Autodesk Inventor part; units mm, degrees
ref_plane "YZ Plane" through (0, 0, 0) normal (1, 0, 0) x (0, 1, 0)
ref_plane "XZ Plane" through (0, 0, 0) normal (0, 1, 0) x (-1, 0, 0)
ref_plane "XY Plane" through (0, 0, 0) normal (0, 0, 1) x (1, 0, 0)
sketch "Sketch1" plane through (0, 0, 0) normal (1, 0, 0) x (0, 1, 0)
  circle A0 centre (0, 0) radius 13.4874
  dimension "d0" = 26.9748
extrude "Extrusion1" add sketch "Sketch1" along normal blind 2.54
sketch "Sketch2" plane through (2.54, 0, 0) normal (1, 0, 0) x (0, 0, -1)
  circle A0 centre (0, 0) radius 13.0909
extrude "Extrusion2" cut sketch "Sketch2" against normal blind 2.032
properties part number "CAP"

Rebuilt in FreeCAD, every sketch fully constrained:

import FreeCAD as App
import Part
import Sketcher

V = App.Vector
Q = App.Units.Quantity

doc = App.newDocument("Part")
params = doc.addObject("Spreadsheet::Sheet", "Params")
for row, (alias, value) in enumerate([
    ("sketch1_diameter", "1.062 in"),
    ("pad1_length", "0.1 in"),
    ("pocket1_length", "0.08 in"),
], start=1):
    params.set(f"A{row}", alias)
    params.set(f"B{row}", "=" + value)
    params.setAlias(f"B{row}", alias)

body = doc.addObject("PartDesign::Body", "Body")

sketch1 = doc.addObject("Sketcher::SketchObject", "Sketch")
body.addObject(sketch1)
sketch1.AttachmentSupport = (doc.YZ_Plane, [""])
sketch1.MapMode = "FlatFace"
sketch1.addGeometry(Part.Circle(V(0, 0, 0), V(0, 0, 1), 13), False)
sketch1.addConstraint(Sketcher.Constraint("Coincident", 0, 3, -1, 1))
sketch1.addConstraint(Sketcher.Constraint("Diameter", 0, Q("1.062 in")))
sketch1.setExpression("Constraints[1]", "Params.sketch1_diameter")
pad1 = doc.addObject("PartDesign::Pad", "Pad")
body.addObject(pad1)
pad1.Profile = sketch1
pad1.setExpression("Length", "Params.pad1_length")

sketch2 = doc.addObject("Sketcher::SketchObject", "Sketch001")
body.addObject(sketch2)
sketch2.AttachmentSupport = (doc.YZ_Plane, [""])
sketch2.MapMode = "FlatFace"
sketch2.AttachmentOffset = App.Placement(V(0, 0, 0.1 * 25.4), App.Rotation())
sketch2.addGeometry(Part.Circle(V(0, 0, 0), V(0, 0, 1), 13), False)
sketch2.addConstraint(Sketcher.Constraint("Coincident", 0, 3, -1, 1))
sketch2.addConstraint(Sketcher.Constraint("Diameter", 0, 26.1818))
pocket1 = doc.addObject("PartDesign::Pocket", "Pocket")
body.addObject(pocket1)
pocket1.Profile = sketch2
pocket1.setExpression("Length", "Params.pocket1_length")

doc.recompute()
